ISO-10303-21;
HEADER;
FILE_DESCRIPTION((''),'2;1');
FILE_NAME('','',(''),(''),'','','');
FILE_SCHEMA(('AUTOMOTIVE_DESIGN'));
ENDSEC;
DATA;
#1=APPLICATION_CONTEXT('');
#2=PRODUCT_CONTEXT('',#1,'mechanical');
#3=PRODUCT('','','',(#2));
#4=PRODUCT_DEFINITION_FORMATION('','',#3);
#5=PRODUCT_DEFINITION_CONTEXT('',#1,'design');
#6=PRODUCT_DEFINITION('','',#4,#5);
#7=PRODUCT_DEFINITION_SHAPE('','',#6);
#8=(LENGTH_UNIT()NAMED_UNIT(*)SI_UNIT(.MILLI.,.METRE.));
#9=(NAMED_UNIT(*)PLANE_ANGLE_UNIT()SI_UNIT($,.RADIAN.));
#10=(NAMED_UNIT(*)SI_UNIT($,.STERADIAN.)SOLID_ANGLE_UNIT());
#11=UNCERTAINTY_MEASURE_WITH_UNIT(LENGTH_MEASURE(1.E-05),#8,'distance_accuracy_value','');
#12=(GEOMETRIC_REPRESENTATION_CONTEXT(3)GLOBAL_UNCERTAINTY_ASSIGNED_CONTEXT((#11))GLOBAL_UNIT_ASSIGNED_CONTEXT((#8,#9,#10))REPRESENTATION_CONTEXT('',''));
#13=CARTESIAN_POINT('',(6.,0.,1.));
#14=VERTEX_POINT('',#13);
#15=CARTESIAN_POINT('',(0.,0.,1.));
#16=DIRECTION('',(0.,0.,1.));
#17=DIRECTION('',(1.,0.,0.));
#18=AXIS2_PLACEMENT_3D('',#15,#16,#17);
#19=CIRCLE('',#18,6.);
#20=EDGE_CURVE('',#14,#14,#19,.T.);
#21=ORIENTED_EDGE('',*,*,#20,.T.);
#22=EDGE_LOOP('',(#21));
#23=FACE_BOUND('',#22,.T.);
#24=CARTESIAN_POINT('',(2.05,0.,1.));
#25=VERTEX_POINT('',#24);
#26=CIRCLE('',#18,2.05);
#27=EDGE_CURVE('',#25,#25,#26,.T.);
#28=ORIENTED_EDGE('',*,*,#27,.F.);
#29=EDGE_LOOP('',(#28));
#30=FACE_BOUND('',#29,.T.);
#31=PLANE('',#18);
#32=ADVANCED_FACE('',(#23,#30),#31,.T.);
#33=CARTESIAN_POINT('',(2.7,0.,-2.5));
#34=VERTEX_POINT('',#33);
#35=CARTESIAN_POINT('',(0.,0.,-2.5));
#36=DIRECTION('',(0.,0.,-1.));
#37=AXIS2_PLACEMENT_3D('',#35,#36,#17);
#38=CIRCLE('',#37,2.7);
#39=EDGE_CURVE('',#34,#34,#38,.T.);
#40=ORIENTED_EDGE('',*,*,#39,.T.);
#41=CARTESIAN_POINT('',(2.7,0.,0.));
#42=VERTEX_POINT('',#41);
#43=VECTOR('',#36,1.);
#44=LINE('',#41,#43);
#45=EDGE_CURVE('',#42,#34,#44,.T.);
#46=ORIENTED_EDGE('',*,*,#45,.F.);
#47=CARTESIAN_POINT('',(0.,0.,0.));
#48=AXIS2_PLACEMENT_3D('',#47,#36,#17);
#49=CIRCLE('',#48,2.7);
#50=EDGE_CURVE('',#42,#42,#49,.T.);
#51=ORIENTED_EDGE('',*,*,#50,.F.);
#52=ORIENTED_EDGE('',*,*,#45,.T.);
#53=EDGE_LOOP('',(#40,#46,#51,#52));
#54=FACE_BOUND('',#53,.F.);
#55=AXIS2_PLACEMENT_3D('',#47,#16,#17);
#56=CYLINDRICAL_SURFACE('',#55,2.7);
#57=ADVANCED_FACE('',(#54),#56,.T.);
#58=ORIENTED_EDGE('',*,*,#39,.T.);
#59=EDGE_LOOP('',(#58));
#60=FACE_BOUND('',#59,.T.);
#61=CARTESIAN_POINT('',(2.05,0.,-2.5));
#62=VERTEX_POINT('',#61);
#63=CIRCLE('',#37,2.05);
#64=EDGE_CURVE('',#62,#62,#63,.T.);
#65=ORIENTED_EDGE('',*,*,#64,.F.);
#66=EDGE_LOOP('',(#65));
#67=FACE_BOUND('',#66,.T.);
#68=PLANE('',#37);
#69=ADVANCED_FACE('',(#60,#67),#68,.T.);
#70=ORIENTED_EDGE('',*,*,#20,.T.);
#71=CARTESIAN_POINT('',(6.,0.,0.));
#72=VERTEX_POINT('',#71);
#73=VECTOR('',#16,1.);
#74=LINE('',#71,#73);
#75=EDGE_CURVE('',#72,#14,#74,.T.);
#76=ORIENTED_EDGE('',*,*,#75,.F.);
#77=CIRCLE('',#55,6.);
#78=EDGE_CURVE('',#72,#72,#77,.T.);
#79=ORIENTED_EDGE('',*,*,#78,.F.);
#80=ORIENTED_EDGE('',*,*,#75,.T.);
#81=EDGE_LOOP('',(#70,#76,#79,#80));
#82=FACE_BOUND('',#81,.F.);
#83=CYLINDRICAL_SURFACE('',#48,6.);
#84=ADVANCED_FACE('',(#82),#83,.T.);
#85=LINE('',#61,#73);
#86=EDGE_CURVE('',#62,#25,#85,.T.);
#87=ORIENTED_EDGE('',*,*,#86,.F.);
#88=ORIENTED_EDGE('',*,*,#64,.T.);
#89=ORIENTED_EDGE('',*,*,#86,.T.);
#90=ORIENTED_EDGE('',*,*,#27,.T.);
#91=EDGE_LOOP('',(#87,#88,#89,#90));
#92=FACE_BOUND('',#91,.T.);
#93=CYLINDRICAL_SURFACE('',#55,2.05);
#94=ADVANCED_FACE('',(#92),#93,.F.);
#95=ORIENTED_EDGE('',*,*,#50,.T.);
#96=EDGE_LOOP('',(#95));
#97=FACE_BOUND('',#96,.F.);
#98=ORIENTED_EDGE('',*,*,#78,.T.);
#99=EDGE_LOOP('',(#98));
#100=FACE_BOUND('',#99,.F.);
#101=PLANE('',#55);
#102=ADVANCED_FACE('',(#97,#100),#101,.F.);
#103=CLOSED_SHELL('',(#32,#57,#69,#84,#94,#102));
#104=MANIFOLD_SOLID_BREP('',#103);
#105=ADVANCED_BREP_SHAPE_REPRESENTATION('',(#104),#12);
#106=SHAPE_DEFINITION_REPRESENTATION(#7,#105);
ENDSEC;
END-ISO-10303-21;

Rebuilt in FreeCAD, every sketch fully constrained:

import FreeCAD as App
import Part
import Sketcher
from FreeCAD import Vector

doc = App.newDocument("Part")
body = doc.addObject("PartDesign::Body", "Body")

sketch1 = body.newObject("Sketcher::SketchObject", "Sketch")
sketch1.AttachmentSupport = (doc.getObject("XY_Plane"), [""])
sketch1.MapMode = "FlatFace"
sketch1.addGeometry([
    Part.Circle(Vector(0, 0, 0), Vector(0, 0, 1), 6),
    Part.Circle(Vector(0, 0, 0), Vector(0, 0, 1), 2),
], False)
sketch1.addConstraint([
    Sketcher.Constraint("Coincident", 0, 3, -1, 1),
    Sketcher.Constraint("Coincident", 1, 3, -1, 1),
    Sketcher.Constraint("Diameter", 0, 12.0),
    Sketcher.Constraint("Diameter", 1, 4.1),
])
pad1 = body.newObject("PartDesign::Pad", "Pad")
pad1.Profile = sketch1
pad1.Length = 1

sketch2 = body.newObject("Sketcher::SketchObject", "Sketch001")
sketch2.AttachmentSupport = (doc.getObject("XY_Plane"), [""])
sketch2.MapMode = "FlatFace"
sketch2.addGeometry([
    Part.Circle(Vector(0, 0, 0), Vector(0, 0, 1), 2.7),
    Part.Circle(Vector(0, 0, 0), Vector(0, 0, 1), 2),
], False)
sketch2.addConstraint([
    Sketcher.Constraint("Coincident", 0, 3, -1, 1),
    Sketcher.Constraint("Coincident", 1, 3, -1, 1),
    Sketcher.Constraint("Diameter", 0, 5.4),
    Sketcher.Constraint("Diameter", 1, 4.1),
])
pad2 = body.newObject("PartDesign::Pad", "Pad001")
pad2.Profile = sketch2
pad2.Length = 2.5
pad2.Reversed = True

doc.recompute()
